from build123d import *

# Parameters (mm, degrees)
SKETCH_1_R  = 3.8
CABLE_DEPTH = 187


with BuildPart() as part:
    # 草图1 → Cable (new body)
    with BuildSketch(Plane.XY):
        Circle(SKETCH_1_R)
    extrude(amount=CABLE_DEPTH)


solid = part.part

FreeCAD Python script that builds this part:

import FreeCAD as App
import Part
import Sketcher
Q = App.Units.Quantity

doc = App.newDocument("Part")
params = doc.addObject("Spreadsheet::Sheet", "Params")
for row, (alias, value) in enumerate([
    ("sketch1_diameter", "7.6 mm"),
    ("pad1_length", "187 mm"),
], start=1):
    params.set(f"A{row}", alias)
    params.set(f"B{row}", "=" + value)
    params.setAlias(f"B{row}", alias)

body = doc.addObject("PartDesign::Body", "Body")

sketch1 = body.newObject("Sketcher::SketchObject", "Sketch")
sketch1.AttachmentSupport = (doc.getObject("XY_Plane"), [""])
sketch1.MapMode = "FlatFace"
sketch1.addGeometry(Part.Circle(App.Vector(0, 0, 0), App.Vector(0, 0, 1), 3.8), False)
sketch1.addConstraint([
    Sketcher.Constraint("Coincident", 0, 3, -1, 1),
    Sketcher.Constraint("Diameter", 0, Q("7.6 mm")),
])
sketch1.setExpression("Constraints[1]", "Params.sketch1_diameter")
pad1 = body.newObject("PartDesign::Pad", "Pad")
pad1.Profile = sketch1
pad1.setExpression("Length", "Params.pad1_length")

doc.recompute()
